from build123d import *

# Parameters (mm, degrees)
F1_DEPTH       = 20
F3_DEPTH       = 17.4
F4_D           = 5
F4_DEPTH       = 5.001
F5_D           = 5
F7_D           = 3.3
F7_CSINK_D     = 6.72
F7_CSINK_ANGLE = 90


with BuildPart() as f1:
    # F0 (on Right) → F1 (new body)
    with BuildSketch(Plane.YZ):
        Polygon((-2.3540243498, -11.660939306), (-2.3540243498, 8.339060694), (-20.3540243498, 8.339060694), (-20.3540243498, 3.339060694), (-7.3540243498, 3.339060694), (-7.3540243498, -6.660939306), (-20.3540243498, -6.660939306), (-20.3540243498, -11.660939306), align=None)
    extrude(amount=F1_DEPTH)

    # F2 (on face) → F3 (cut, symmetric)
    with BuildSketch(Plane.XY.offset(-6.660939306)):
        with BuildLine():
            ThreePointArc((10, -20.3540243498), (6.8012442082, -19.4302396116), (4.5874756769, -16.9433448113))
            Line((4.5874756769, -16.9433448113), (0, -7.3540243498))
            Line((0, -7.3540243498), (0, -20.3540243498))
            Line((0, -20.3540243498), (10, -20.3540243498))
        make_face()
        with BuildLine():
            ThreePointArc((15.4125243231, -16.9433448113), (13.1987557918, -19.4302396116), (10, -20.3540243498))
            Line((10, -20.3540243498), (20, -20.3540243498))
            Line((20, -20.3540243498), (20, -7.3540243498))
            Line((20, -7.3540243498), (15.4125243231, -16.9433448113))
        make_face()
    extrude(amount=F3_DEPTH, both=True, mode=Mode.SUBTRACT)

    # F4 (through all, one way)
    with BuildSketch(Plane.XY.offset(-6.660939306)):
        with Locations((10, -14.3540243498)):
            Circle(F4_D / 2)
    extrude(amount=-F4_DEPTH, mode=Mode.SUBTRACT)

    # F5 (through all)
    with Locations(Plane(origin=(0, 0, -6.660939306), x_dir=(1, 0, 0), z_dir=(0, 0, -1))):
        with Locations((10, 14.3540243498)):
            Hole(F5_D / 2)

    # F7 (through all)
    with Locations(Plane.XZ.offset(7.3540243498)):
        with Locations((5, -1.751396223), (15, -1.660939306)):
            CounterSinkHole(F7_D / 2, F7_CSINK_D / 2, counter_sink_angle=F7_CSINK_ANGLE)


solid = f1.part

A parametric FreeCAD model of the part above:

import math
import FreeCAD as App
import Part
import Sketcher

V = App.Vector


def add_polygon(sketch, points):
    """Adds a closed chain of lines whose ends are joined by coincident constraints."""
    first, n = sketch.GeometryCount, len(points)
    for a, b in zip(points, points[1:] + points[:1]):
        sketch.addGeometry(Part.LineSegment(App.Vector(*a, 0), App.Vector(*b, 0)), False)
    for i in range(n):
        sketch.addConstraint(Sketcher.Constraint("Coincident", first + i, 2, first + (i + 1) % n, 1))

doc = App.newDocument("Part")
params = doc.addObject("Spreadsheet::Sheet", "Params")
for row, (alias, value) in enumerate([
    ("sketch1_width", "18 mm"),
    ("sketch1_width2", "13 mm"),
    ("sketch1_height", "20 mm"),
    ("sketch1_height2", "5 mm"),
    ("pad1_length", "20 mm"),
    ("sketch2_radius", "6 mm"),
    ("sketch2_width", "10 mm"),
    ("sketch2_height", "13 mm"),
    ("pocket1_length", "34.8 mm"),
    ("sketch3_diameter", "5 mm"),
    ("sketch4_diameter", "5 mm"),
    ("hole_diameter", "5 mm"),
    ("sketch5_diameter", "3.3 mm"),
    ("hole2_diameter", "3.3 mm"),
    ("hole2_csink_diameter", "6.72 mm"),
], start=1):
    params.set(f"A{row}", alias)
    params.set(f"B{row}", "=" + value)
    params.setAlias(f"B{row}", alias)

body = doc.addObject("PartDesign::Body", "Body")

sketch1 = body.newObject("Sketcher::SketchObject", "Sketch")
sketch1.AttachmentSupport = (doc.getObject("YZ_Plane"), [""])
sketch1.MapMode = "FlatFace"
add_polygon(sketch1, [(-2.4, -11.7), (-2.4, 8.3), (-20.4, 8.3), (-20.4, 3.3), (-7.4, 3.3), (-7.4, -6.7), (-20.4, -6.7), (-20.4, -11.7)])
sketch1.addConstraint([
    Sketcher.Constraint("Vertical", 0),
    Sketcher.Constraint("Horizontal", 1),
    Sketcher.Constraint("Vertical", 2),
    Sketcher.Constraint("Horizontal", 3),
    Sketcher.Constraint("Vertical", 4),
    Sketcher.Constraint("Horizontal", 5),
    Sketcher.Constraint("Vertical", 6),
    Sketcher.Constraint("Horizontal", 7),
    Sketcher.Constraint("Vertical", 2, 2, 5, 2),
    Sketcher.Constraint("Equal", 2, 6),
    Sketcher.Constraint("DistanceX", 1, 2, 1, 1, 18.0),
    Sketcher.Constraint("DistanceX", 3, 1, 3, 2, 13.0),
    Sketcher.Constraint("DistanceY", 0, 1, 0, 2, 20.0),
    Sketcher.Constraint("DistanceY", 2, 2, 2, 1, 5.0),
    Sketcher.Constraint("DistanceY", -1, 1, 0, 2, 8.339061),
    Sketcher.Constraint("DistanceX", 0, 2, -1, 1, 2.354024),
])
sketch1.setExpression("Constraints[18]", "Params.sketch1_width")
sketch1.setExpression("Constraints[19]", "Params.sketch1_width2")
sketch1.setExpression("Constraints[20]", "Params.sketch1_height")
sketch1.setExpression("Constraints[21]", "Params.sketch1_height2")
pad1 = body.newObject("PartDesign::Pad", "Pad")
pad1.Profile = sketch1
pad1.setExpression("Length", "Params.pad1_length")

sketch2 = body.newObject("Sketcher::SketchObject", "Sketch001")
sketch2.AttachmentSupport = (doc.getObject("XY_Plane"), [""])
sketch2.MapMode = "FlatFace"
sketch2.AttachmentOffset = App.Placement(V(0, 0, -6.660939), App.Rotation())
sketch2.addGeometry([
    Part.ArcOfCircle(Part.Circle(V(10, -14, 0), V(0, 0, 1), 6), math.radians(-154), math.radians(-90)),
    Part.LineSegment(V(5, -17, 0), V(0, -7, 0)),
    Part.LineSegment(V(0, -7, 0), V(0, -20, 0)),
    Part.LineSegment(V(0, -20, 0), V(10, -20, 0)),
    Part.ArcOfCircle(Part.Circle(V(10, -14, 0), V(0, 0, 1), 6), math.radians(-90), math.radians(-26)),
    Part.LineSegment(V(10, -20, 0), V(20, -20, 0)),
    Part.LineSegment(V(20, -20, 0), V(20, -7, 0)),
    Part.LineSegment(V(20, -7, 0), V(15, -17, 0)),
], False)
sketch2.addConstraint([
    Sketcher.Constraint("Tangent", 0, 1, 1, 1),
    Sketcher.Constraint("Coincident", 1, 2, 2, 1),
    Sketcher.Constraint("Coincident", 2, 2, 3, 1),
    Sketcher.Constraint("Tangent", 3, 2, 0, 2),
    Sketcher.Constraint("Tangent", 4, 1, 5, 1),
    Sketcher.Constraint("Coincident", 5, 2, 6, 1),
    Sketcher.Constraint("Coincident", 6, 2, 7, 1),
    Sketcher.Constraint("Tangent", 7, 2, 4, 2),
    Sketcher.Constraint("Vertical", 2),
    Sketcher.Constraint("Horizontal", 3),
    Sketcher.Constraint("Horizontal", 5),
    Sketcher.Constraint("Vertical", 6),
    Sketcher.Constraint("Coincident", 4, 3, 0, 3),
    Sketcher.Constraint("Equal", 0, 4),
    Sketcher.Constraint("PointOnObject", 1, 2, -2),
    Sketcher.Constraint("Horizontal", 1, 2, 6, 2),
    Sketcher.Constraint("Horizontal", 0, 1, 7, 2),
    Sketcher.Constraint("Radius", 0, 6.0),
    Sketcher.Constraint("DistanceX", 3, 1, 3, 2, 10.0),
    Sketcher.Constraint("DistanceY", 2, 2, 2, 1, 13.0),
    Sketcher.Constraint("DistanceY", 0, 3, -1, 1, 14.354024),
])
sketch2.setExpression("Constraints[17]", "Params.sketch2_radius")
sketch2.setExpression("Constraints[18]", "Params.sketch2_width")
sketch2.setExpression("Constraints[19]", "Params.sketch2_height")
pocket1 = body.newObject("PartDesign::Pocket", "Pocket")
pocket1.Profile = sketch2
pocket1.setExpression("Length", "Params.pocket1_length")
pocket1.Midplane = True

sketch3 = body.newObject("Sketcher::SketchObject", "Sketch002")
sketch3.AttachmentSupport = (doc.getObject("XY_Plane"), [""])
sketch3.MapMode = "FlatFace"
sketch3.AttachmentOffset = App.Placement(V(0, 0, -6.660939), App.Rotation())
sketch3.addGeometry(Part.Circle(V(10, -14.4, 0), V(0, 0, 1), 2.5), False)
sketch3.addConstraint([
    Sketcher.Constraint("Diameter", 0, 5.0),
    Sketcher.Constraint("DistanceX", -1, 1, 0, 3, 10.0),
    Sketcher.Constraint("DistanceY", 0, 3, -1, 1, 14.354024),
])
sketch3.setExpression("Constraints[0]", "Params.sketch3_diameter")
pocket2 = body.newObject("PartDesign::Pocket", "Pocket001")
pocket2.Profile = sketch3
pocket2.Type = "ThroughAll"

sketch4 = body.newObject("Sketcher::SketchObject", "Sketch003")
sketch4.AttachmentSupport = (doc.getObject("XY_Plane"), [""])
sketch4.MapMode = "FlatFace"
sketch4.AttachmentOffset = App.Placement(V(0, 0, -6.660939), App.Rotation())
sketch4.addGeometry(Part.Circle(V(10, -14.4, 0), V(0, 0, 1), 2.5), False)
sketch4.addConstraint([
    Sketcher.Constraint("Diameter", 0, 5.0),
    Sketcher.Constraint("DistanceX", -1, 1, 0, 3, 10.0),
    Sketcher.Constraint("DistanceY", 0, 3, -1, 1, 14.354024),
])
sketch4.setExpression("Constraints[0]", "Params.sketch4_diameter")
doc.recompute()
hole = body.newObject("PartDesign::Hole", "Hole")
hole.Profile = sketch4
hole.ThreadType = "None"
hole.setExpression("Diameter", "Params.hole_diameter")
hole.DepthType = "ThroughAll"
hole.Reversed = True

sketch5 = body.newObject("Sketcher::SketchObject", "Sketch004")
sketch5.AttachmentSupport = (doc.getObject("XZ_Plane"), [""])
sketch5.MapMode = "FlatFace"
sketch5.AttachmentOffset = App.Placement(V(0, 0, 7.354024), App.Rotation())
sketch5.addGeometry([
    Part.Circle(V(5, -1.8, 0), V(0, 0, 1), 1.6),
    Part.Circle(V(15, -1.7, 0), V(0, 0, 1), 1.6),
], False)
sketch5.addConstraint([
    Sketcher.Constraint("Equal", 0, 1),
    Sketcher.Constraint("Diameter", 0, 3.3),
    Sketcher.Constraint("DistanceX", -1, 1, 0, 3, 5.0),
    Sketcher.Constraint("DistanceX", -1, 1, 1, 3, 15.0),
    Sketcher.Constraint("DistanceY", 1, 3, -1, 1, 1.660939),
    Sketcher.Constraint("DistanceY", 0, 3, -1, 1, 1.751396),
])
sketch5.setExpression("Constraints[1]", "Params.sketch5_diameter")
doc.recompute()
hole2 = body.newObject("PartDesign::Hole", "Hole001")
hole2.Profile = sketch5
hole2.ThreadType = "None"
hole2.setExpression("Diameter", "Params.hole2_diameter")
hole2.DepthType = "ThroughAll"
hole2.HoleCutType = "Countersink"
hole2.setExpression("HoleCutDiameter", "Params.hole2_csink_diameter")
hole2.HoleCutCountersinkAngle = 90

doc.recompute()
